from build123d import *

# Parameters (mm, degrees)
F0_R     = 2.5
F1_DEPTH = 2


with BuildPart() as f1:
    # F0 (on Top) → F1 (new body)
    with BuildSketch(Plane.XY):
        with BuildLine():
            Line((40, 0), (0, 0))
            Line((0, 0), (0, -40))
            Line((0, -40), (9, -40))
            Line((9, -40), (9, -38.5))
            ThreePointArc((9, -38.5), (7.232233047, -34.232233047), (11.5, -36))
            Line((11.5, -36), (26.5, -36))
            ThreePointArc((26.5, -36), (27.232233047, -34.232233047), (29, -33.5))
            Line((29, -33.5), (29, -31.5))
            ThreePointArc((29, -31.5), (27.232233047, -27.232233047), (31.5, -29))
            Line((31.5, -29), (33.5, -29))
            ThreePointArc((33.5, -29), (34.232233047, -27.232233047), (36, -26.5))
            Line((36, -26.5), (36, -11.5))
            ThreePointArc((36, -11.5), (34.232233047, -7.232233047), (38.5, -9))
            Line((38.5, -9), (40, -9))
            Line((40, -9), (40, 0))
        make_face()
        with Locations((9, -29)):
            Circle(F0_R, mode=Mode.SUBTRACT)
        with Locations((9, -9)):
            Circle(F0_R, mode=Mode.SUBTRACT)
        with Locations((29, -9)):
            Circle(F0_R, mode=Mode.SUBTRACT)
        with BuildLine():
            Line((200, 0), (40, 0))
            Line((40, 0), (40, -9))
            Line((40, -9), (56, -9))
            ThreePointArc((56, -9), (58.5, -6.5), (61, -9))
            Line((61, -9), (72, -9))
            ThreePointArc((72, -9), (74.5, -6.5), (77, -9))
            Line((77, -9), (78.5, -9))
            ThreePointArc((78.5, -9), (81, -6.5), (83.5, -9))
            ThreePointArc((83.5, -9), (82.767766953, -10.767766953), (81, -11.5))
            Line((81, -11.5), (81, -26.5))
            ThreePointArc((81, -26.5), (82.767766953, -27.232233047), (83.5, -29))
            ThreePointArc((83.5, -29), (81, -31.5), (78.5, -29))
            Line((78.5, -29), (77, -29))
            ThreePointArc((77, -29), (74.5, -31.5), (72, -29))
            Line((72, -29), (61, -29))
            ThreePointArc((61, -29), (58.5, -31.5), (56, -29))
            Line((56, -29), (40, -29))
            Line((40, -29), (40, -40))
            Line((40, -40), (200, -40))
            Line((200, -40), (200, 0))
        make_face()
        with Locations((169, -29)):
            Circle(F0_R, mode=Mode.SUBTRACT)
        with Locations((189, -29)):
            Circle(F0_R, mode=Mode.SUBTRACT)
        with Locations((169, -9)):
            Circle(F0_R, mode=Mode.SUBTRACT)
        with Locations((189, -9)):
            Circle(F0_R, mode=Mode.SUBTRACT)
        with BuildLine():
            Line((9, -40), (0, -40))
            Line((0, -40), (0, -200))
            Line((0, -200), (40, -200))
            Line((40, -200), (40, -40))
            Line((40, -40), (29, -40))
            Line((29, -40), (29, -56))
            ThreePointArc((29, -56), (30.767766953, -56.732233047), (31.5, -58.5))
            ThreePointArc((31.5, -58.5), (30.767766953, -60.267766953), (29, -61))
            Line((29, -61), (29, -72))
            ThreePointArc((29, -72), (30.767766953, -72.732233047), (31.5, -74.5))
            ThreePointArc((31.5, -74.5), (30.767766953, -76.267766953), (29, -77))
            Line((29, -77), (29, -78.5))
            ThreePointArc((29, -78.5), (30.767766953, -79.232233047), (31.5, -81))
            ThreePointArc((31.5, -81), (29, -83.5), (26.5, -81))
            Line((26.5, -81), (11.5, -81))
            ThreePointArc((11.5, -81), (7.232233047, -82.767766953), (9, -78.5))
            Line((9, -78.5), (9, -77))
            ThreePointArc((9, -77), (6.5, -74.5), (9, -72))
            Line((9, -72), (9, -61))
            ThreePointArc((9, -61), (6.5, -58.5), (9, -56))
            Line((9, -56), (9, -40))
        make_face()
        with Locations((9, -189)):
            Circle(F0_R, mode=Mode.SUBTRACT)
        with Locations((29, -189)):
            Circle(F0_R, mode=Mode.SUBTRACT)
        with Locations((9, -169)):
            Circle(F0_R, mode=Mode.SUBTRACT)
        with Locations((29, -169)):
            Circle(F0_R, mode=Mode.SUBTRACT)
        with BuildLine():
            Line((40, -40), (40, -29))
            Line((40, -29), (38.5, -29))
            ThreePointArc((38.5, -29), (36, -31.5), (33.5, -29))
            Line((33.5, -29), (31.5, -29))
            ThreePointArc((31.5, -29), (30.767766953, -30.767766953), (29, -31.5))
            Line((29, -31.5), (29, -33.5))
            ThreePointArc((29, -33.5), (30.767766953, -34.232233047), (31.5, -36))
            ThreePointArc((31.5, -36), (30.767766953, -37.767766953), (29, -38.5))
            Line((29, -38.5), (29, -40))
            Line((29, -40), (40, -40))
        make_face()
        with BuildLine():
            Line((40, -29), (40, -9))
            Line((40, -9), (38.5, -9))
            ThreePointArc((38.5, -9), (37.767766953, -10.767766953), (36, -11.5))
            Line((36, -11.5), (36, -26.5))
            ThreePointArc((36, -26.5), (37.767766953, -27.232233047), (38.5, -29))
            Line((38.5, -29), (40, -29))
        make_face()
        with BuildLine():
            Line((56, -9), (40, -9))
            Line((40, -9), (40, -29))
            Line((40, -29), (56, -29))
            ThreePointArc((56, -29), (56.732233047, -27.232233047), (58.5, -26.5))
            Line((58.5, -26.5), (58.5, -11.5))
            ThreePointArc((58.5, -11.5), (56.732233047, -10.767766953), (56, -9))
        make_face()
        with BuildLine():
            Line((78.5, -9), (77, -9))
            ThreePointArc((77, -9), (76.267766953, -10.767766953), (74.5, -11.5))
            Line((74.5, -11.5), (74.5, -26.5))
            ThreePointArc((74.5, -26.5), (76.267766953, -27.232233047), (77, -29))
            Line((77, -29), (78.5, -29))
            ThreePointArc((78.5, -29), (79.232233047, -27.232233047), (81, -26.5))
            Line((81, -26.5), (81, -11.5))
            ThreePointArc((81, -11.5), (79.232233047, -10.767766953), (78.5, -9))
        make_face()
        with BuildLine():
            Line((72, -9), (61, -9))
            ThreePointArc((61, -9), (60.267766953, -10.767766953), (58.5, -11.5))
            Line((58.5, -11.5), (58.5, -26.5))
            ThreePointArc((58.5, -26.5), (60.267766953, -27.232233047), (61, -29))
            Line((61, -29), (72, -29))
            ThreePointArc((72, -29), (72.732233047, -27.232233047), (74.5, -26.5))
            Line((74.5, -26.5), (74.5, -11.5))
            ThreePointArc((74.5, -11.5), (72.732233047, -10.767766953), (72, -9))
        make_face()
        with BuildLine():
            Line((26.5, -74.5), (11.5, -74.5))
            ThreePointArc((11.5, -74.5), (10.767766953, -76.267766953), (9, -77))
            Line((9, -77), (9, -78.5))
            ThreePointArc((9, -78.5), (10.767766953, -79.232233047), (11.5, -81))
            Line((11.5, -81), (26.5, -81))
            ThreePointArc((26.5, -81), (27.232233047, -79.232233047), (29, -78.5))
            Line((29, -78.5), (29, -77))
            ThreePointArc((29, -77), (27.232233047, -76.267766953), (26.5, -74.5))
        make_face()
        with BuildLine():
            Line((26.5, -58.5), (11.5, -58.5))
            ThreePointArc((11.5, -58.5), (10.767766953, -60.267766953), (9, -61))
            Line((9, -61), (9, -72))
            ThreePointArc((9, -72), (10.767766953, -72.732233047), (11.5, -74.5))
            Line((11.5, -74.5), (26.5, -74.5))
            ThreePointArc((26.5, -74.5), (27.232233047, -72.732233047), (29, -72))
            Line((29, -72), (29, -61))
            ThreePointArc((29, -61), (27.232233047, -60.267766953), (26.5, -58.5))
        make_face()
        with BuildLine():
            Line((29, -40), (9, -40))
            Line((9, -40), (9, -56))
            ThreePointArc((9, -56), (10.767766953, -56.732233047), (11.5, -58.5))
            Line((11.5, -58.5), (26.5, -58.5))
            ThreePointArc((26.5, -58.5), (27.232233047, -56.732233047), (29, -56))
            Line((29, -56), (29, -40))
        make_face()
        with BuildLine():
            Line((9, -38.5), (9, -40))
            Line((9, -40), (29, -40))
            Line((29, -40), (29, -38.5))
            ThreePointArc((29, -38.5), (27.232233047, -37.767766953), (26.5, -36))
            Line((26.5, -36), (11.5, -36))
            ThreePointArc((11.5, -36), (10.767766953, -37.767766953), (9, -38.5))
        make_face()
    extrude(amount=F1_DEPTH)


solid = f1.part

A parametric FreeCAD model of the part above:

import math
import FreeCAD as App
import Part
import Sketcher
from FreeCAD import Vector


def add_polygon(sketch, points):
    """Adds a closed chain of lines whose ends are joined by coincident constraints."""
    first, n = sketch.GeometryCount, len(points)
    for a, b in zip(points, points[1:] + points[:1]):
        sketch.addGeometry(Part.LineSegment(App.Vector(*a, 0), App.Vector(*b, 0)), False)
    for i in range(n):
        sketch.addConstraint(Sketcher.Constraint("Coincident", first + i, 2, first + (i + 1) % n, 1))

doc = App.newDocument("Part")
body = doc.addObject("PartDesign::Body", "Body")

sketch1 = body.newObject("Sketcher::SketchObject", "Sketch")
sketch1.AttachmentSupport = (doc.getObject("XY_Plane"), [""])
sketch1.MapMode = "FlatFace"
add_polygon(sketch1, [(200, -40), (200, 0), (0, 0), (0, -200), (40, -200), (40, -40)])
sketch1.addGeometry(Part.Circle(Vector(9, -189, 0), Vector(0, 0, 1), 2.5), False)
sketch1.addGeometry(Part.Circle(Vector(29, -189, 0), Vector(0, 0, 1), 2.5), False)
sketch1.addGeometry(Part.Circle(Vector(9, -169, 0), Vector(0, 0, 1), 2.5), False)
sketch1.addGeometry(Part.Circle(Vector(29, -169, 0), Vector(0, 0, 1), 2.5), False)
sketch1.addGeometry(Part.ArcOfCircle(Part.Circle(Vector(58.5, -9, 0), Vector(0, 0, 1), 2.5), math.radians(0), math.radians(180)), False)
sketch1.addGeometry(Part.ArcOfCircle(Part.Circle(Vector(58.5, -9, 0), Vector(0, 0, 1), 2.5), math.radians(-90), math.radians(0)), False)
sketch1.addGeometry(Part.ArcOfCircle(Part.Circle(Vector(58.5, -9, 0), Vector(0, 0, 1), 2.5), math.radians(180), math.radians(270)), False)
sketch1.addGeometry(Part.ArcOfCircle(Part.Circle(Vector(74.5, -9, 0), Vector(0, 0, 1), 2.5), math.radians(0), math.radians(180)), False)
sketch1.addGeometry(Part.ArcOfCircle(Part.Circle(Vector(74.5, -9, 0), Vector(0, 0, 1), 2.5), math.radians(-90), math.radians(0)), False)
sketch1.addGeometry(Part.ArcOfCircle(Part.Circle(Vector(74.5, -9, 0), Vector(0, 0, 1), 2.5), math.radians(180), math.radians(270)), False)
sketch1.addGeometry(Part.ArcOfCircle(Part.Circle(Vector(74.5, -29, 0), Vector(0, 0, 1), 2.5), math.radians(0), math.radians(90)), False)
sketch1.addGeometry(Part.ArcOfCircle(Part.Circle(Vector(74.5, -29, 0), Vector(0, 0, 1), 2.5), math.radians(180), math.radians(360)), False)
sketch1.addGeometry(Part.ArcOfCircle(Part.Circle(Vector(74.5, -29, 0), Vector(0, 0, 1), 2.5), math.radians(90), math.radians(180)), False)
sketch1.addGeometry(Part.ArcOfCircle(Part.Circle(Vector(58.5, -29, 0), Vector(0, 0, 1), 2.5), math.radians(180), math.radians(360)), False)
sketch1.addGeometry(Part.ArcOfCircle(Part.Circle(Vector(58.5, -29, 0), Vector(0, 0, 1), 2.5), math.radians(90), math.radians(180)), False)
sketch1.addGeometry(Part.ArcOfCircle(Part.Circle(Vector(58.5, -29, 0), Vector(0, 0, 1), 2.5), math.radians(0), math.radians(90)), False)
sketch1.addGeometry(Part.ArcOfCircle(Part.Circle(Vector(81, -9, 0), Vector(0, 0, 1), 2.5), math.radians(0), math.radians(180)), False)
sketch1.addGeometry(Part.ArcOfCircle(Part.Circle(Vector(81, -9, 0), Vector(0, 0, 1), 2.5), math.radians(-90), math.radians(0)), False)
sketch1.addGeometry(Part.ArcOfCircle(Part.Circle(Vector(81, -9, 0), Vector(0, 0, 1), 2.5), math.radians(180), math.radians(270)), False)
sketch1.addGeometry(Part.ArcOfCircle(Part.Circle(Vector(81, -29, 0), Vector(0, 0, 1), 2.5), math.radians(0), math.radians(90)), False)
sketch1.addGeometry(Part.ArcOfCircle(Part.Circle(Vector(81, -29, 0), Vector(0, 0, 1), 2.5), math.radians(180), math.radians(360)), False)
sketch1.addGeometry(Part.ArcOfCircle(Part.Circle(Vector(81, -29, 0), Vector(0, 0, 1), 2.5), math.radians(90), math.radians(180)), False)
sketch1.addGeometry(Part.ArcOfCircle(Part.Circle(Vector(36, -29, 0), Vector(0, 0, 1), 2.5), math.radians(180), math.radians(360)), False)
sketch1.addGeometry(Part.ArcOfCircle(Part.Circle(Vector(36, -29, 0), Vector(0, 0, 1), 2.5), math.radians(90), math.radians(180)), False)
sketch1.addGeometry(Part.ArcOfCircle(Part.Circle(Vector(36, -29, 0), Vector(0, 0, 1), 2.5), math.radians(0), math.radians(90)), False)
sketch1.addGeometry(Part.ArcOfCircle(Part.Circle(Vector(36, -9, 0), Vector(0, 0, 1), 2.5), math.radians(0), math.radians(270)), False)
sketch1.addGeometry(Part.ArcOfCircle(Part.Circle(Vector(36, -9, 0), Vector(0, 0, 1), 2.5), math.radians(-90), math.radians(0)), False)
sketch1.addGeometry(Part.ArcOfCircle(Part.Circle(Vector(29, -29, 0), Vector(0, 0, 1), 2.5), math.radians(0), math.radians(270)), False)
sketch1.addGeometry(Part.ArcOfCircle(Part.Circle(Vector(29, -29, 0), Vector(0, 0, 1), 2.5), math.radians(-90), math.radians(0)), False)
sketch1.addGeometry(Part.ArcOfCircle(Part.Circle(Vector(29, -36, 0), Vector(0, 0, 1), 2.5), math.radians(90), math.radians(180)), False)
sketch1.addGeometry(Part.ArcOfCircle(Part.Circle(Vector(29, -36, 0), Vector(0, 0, 1), 2.5), math.radians(0), math.radians(90)), False)
sketch1.addGeometry(Part.ArcOfCircle(Part.Circle(Vector(29, -36, 0), Vector(0, 0, 1), 2.5), math.radians(-90), math.radians(0)), False)
sketch1.addGeometry(Part.ArcOfCircle(Part.Circle(Vector(29, -36, 0), Vector(0, 0, 1), 2.5), math.radians(180), math.radians(270)), False)
sketch1.addGeometry(Part.ArcOfCircle(Part.Circle(Vector(9, -36, 0), Vector(0, 0, 1), 2.5), math.radians(0), math.radians(270)), False)
sketch1.addGeometry(Part.ArcOfCircle(Part.Circle(Vector(9, -36, 0), Vector(0, 0, 1), 2.5), math.radians(-90), math.radians(0)), False)
sketch1.addGeometry(Part.ArcOfCircle(Part.Circle(Vector(29, -58.5, 0), Vector(0, 0, 1), 2.5), math.radians(0), math.radians(90)), False)
sketch1.addGeometry(Part.ArcOfCircle(Part.Circle(Vector(29, -58.5, 0), Vector(0, 0, 1), 2.5), math.radians(-90), math.radians(0)), False)
sketch1.addGeometry(Part.ArcOfCircle(Part.Circle(Vector(29, -58.5, 0), Vector(0, 0, 1), 2.5), math.radians(180), math.radians(270)), False)
sketch1.addGeometry(Part.ArcOfCircle(Part.Circle(Vector(29, -58.5, 0), Vector(0, 0, 1), 2.5), math.radians(90), math.radians(180)), False)
sketch1.addGeometry(Part.ArcOfCircle(Part.Circle(Vector(9, -58.5, 0), Vector(0, 0, 1), 2.5), math.radians(-90), math.radians(0)), False)
sketch1.addGeometry(Part.ArcOfCircle(Part.Circle(Vector(9, -58.5, 0), Vector(0, 0, 1), 2.5), math.radians(90), math.radians(270)), False)
sketch1.addGeometry(Part.ArcOfCircle(Part.Circle(Vector(9, -58.5, 0), Vector(0, 0, 1), 2.5), math.radians(0), math.radians(90)), False)
sketch1.addGeometry(Part.ArcOfCircle(Part.Circle(Vector(29, -74.5, 0), Vector(0, 0, 1), 2.5), math.radians(0), math.radians(90)), False)
sketch1.addGeometry(Part.ArcOfCircle(Part.Circle(Vector(29, -74.5, 0), Vector(0, 0, 1), 2.5), math.radians(-90), math.radians(0)), False)
sketch1.addGeometry(Part.ArcOfCircle(Part.Circle(Vector(29, -74.5, 0), Vector(0, 0, 1), 2.5), math.radians(180), math.radians(270)), False)
sketch1.addGeometry(Part.ArcOfCircle(Part.Circle(Vector(29, -74.5, 0), Vector(0, 0, 1), 2.5), math.radians(90), math.radians(180)), False)
sketch1.addGeometry(Part.ArcOfCircle(Part.Circle(Vector(9, -74.5, 0), Vector(0, 0, 1), 2.5), math.radians(-90), math.radians(0)), False)
sketch1.addGeometry(Part.ArcOfCircle(Part.Circle(Vector(9, -74.5, 0), Vector(0, 0, 1), 2.5), math.radians(90), math.radians(270)), False)
sketch1.addGeometry(Part.ArcOfCircle(Part.Circle(Vector(9, -74.5, 0), Vector(0, 0, 1), 2.5), math.radians(0), math.radians(90)), False)
sketch1.addGeometry(Part.ArcOfCircle(Part.Circle(Vector(29, -81, 0), Vector(0, 0, 1), 2.5), math.radians(0), math.radians(90)), False)
sketch1.addGeometry(Part.ArcOfCircle(Part.Circle(Vector(29, -81, 0), Vector(0, 0, 1), 2.5), math.radians(180), math.radians(360)), False)
sketch1.addGeometry(Part.ArcOfCircle(Part.Circle(Vector(29, -81, 0), Vector(0, 0, 1), 2.5), math.radians(90), math.radians(180)), False)
sketch1.addGeometry(Part.ArcOfCircle(Part.Circle(Vector(9, -81, 0), Vector(0, 0, 1), 2.5), math.radians(90), math.radians(360)), False)
sketch1.addGeometry(Part.ArcOfCircle(Part.Circle(Vector(9, -81, 0), Vector(0, 0, 1), 2.5), math.radians(0), math.radians(90)), False)
sketch1.addGeometry(Part.Circle(Vector(9, -29, 0), Vector(0, 0, 1), 2.5), False)
sketch1.addGeometry(Part.Circle(Vector(9, -9, 0), Vector(0, 0, 1), 2.5), False)
sketch1.addGeometry(Part.Circle(Vector(29, -9, 0), Vector(0, 0, 1), 2.5), False)
sketch1.addGeometry(Part.Circle(Vector(169, -29, 0), Vector(0, 0, 1), 2.5), False)
sketch1.addGeometry(Part.Circle(Vector(189, -29, 0), Vector(0, 0, 1), 2.5), False)
sketch1.addGeometry(Part.Circle(Vector(169, -9, 0), Vector(0, 0, 1), 2.5), False)
sketch1.addGeometry(Part.Circle(Vector(189, -9, 0), Vector(0, 0, 1), 2.5), False)
sketch1.addConstraint([
    Sketcher.Constraint("Tangent", 10, 1, 11, 2),
    Sketcher.Constraint("Tangent", 11, 1, 12, 2),
    Sketcher.Constraint("Tangent", 12, 1, 10, 2),
    Sketcher.Constraint("Tangent", 13, 1, 14, 2),
    Sketcher.Constraint("Tangent", 14, 1, 15, 2),
    Sketcher.Constraint("Tangent", 15, 1, 13, 2),
    Sketcher.Constraint("Tangent", 16, 1, 17, 2),
    Sketcher.Constraint("Tangent", 17, 1, 18, 2),
    Sketcher.Constraint("Tangent", 18, 1, 16, 2),
    Sketcher.Constraint("Tangent", 19, 1, 20, 2),
    Sketcher.Constraint("Tangent", 20, 1, 21, 2),
    Sketcher.Constraint("Tangent", 21, 1, 19, 2),
    Sketcher.Constraint("Tangent", 22, 1, 23, 2),
    Sketcher.Constraint("Tangent", 23, 1, 24, 2),
    Sketcher.Constraint("Tangent", 24, 1, 22, 2),
    Sketcher.Constraint("Tangent", 25, 1, 26, 2),
    Sketcher.Constraint("Tangent", 26, 1, 27, 2),
    Sketcher.Constraint("Tangent", 27, 1, 25, 2),
    Sketcher.Constraint("Tangent", 28, 1, 29, 2),
    Sketcher.Constraint("Tangent", 29, 1, 30, 2),
    Sketcher.Constraint("Tangent", 30, 1, 28, 2),
    Sketcher.Constraint("Tangent", 31, 1, 32, 2),
    Sketcher.Constraint("Coincident", 32, 1, 31, 2),
    Sketcher.Constraint("Tangent", 33, 1, 34, 2),
    Sketcher.Constraint("Coincident", 34, 1, 33, 2),
    Sketcher.Constraint("Tangent", 35, 1, 36, 2),
    Sketcher.Constraint("Tangent", 36, 1, 37, 2),
    Sketcher.Constraint("Tangent", 37, 1, 38, 2),
    Sketcher.Constraint("Tangent", 38, 1, 35, 2),
    Sketcher.Constraint("Tangent", 39, 1, 40, 2),
    Sketcher.Constraint("Coincident", 40, 1, 39, 2),
    Sketcher.Constraint("Tangent", 41, 1, 42, 2),
    Sketcher.Constraint("Tangent", 42, 1, 43, 2),
    Sketcher.Constraint("Tangent", 43, 1, 44, 2),
    Sketcher.Constraint("Tangent", 44, 1, 41, 2),
    Sketcher.Constraint("Tangent", 45, 1, 46, 2),
    Sketcher.Constraint("Tangent", 46, 1, 47, 2),
    Sketcher.Constraint("Tangent", 47, 1, 45, 2),
    Sketcher.Constraint("Tangent", 48, 1, 49, 2),
    Sketcher.Constraint("Tangent", 49, 1, 50, 2),
    Sketcher.Constraint("Tangent", 50, 1, 51, 2),
    Sketcher.Constraint("Tangent", 51, 1, 48, 2),
    Sketcher.Constraint("Tangent", 52, 1, 53, 2),
    Sketcher.Constraint("Tangent", 53, 1, 54, 2),
    Sketcher.Constraint("Tangent", 54, 1, 52, 2),
    Sketcher.Constraint("Tangent", 55, 1, 56, 2),
    Sketcher.Constraint("Tangent", 56, 1, 57, 2),
    Sketcher.Constraint("Tangent", 57, 1, 55, 2),
    Sketcher.Constraint("Tangent", 58, 1, 59, 2),
    Sketcher.Constraint("Coincident", 59, 1, 58, 2),
    Sketcher.Constraint("Vertical", 0),
    Sketcher.Constraint("Horizontal", 1),
    Sketcher.Constraint("Vertical", 2),
    Sketcher.Constraint("Horizontal", 3),
    Sketcher.Constraint("Vertical", 4),
    Sketcher.Constraint("Horizontal", 5),
    Sketcher.Constraint("Coincident", 1, 2, -1, 1),
    Sketcher.Constraint("Equal", 6, 7),
    Sketcher.Constraint("Equal", 7, 8),
    Sketcher.Constraint("Equal", 8, 9),
    Sketcher.Constraint("Equal", 9, 10),
    Sketcher.Constraint("Equal", 12, 13),
    Sketcher.Constraint("Equal", 15, 16),
    Sketcher.Constraint("Equal", 18, 19),
    Sketcher.Constraint("Equal", 21, 22),
    Sketcher.Constraint("Equal", 24, 25),
    Sketcher.Constraint("Equal", 27, 28),
    Sketcher.Constraint("Equal", 30, 31),
    Sketcher.Constraint("Equal", 32, 33),
    Sketcher.Constraint("Equal", 34, 35),
    Sketcher.Constraint("Equal", 35, 36),
    Sketcher.Constraint("Equal", 38, 39),
    Sketcher.Constraint("Equal", 40, 41),
    Sketcher.Constraint("Equal", 41, 42),
    Sketcher.Constraint("Equal", 44, 45),
    Sketcher.Constraint("Equal", 47, 48),
    Sketcher.Constraint("Equal", 48, 49),
    Sketcher.Constraint("Equal", 51, 52),
    Sketcher.Constraint("Equal", 54, 55),
    Sketcher.Constraint("Equal", 57, 58),
    Sketcher.Constraint("Equal", 59, 60),
    Sketcher.Constraint("Equal", 60, 61),
    Sketcher.Constraint("Equal", 61, 62),
    Sketcher.Constraint("Equal", 62, 63),
    Sketcher.Constraint("Equal", 63, 64),
    Sketcher.Constraint("Equal", 64, 65),
    Sketcher.Constraint("Equal", 65, 66),
    Sketcher.Constraint("Horizontal", 6, 3, 7, 3),
    Sketcher.Constraint("Horizontal", 8, 3, 9, 3),
    Sketcher.Constraint("Horizontal", 12, 3, 13, 3),
    Sketcher.Constraint("Horizontal", 18, 3, 19, 3),
    Sketcher.Constraint("Horizontal", 15, 3, 22, 3),
    Sketcher.Constraint("Horizontal", 21, 3, 25, 3),
    Sketcher.Constraint("Horizontal", 27, 3, 28, 3),
    Sketcher.Constraint("Horizontal", 24, 3, 31, 3),
    Sketcher.Constraint("Horizontal", 30, 3, 33, 3),
    Sketcher.Constraint("Horizontal", 38, 3, 39, 3),
    Sketcher.Constraint("Horizontal", 44, 3, 45, 3),
    Sketcher.Constraint("Horizontal", 51, 3, 52, 3),
    Sketcher.Constraint("Horizontal", 57, 3, 58, 3),
    Sketcher.Constraint("Horizontal", 34, 3, 60, 3),
    Sketcher.Constraint("Horizontal", 32, 3, 61, 3),
    Sketcher.Constraint("Horizontal", 61, 3, 62, 3),
    Sketcher.Constraint("Horizontal", 60, 3, 63, 3),
    Sketcher.Constraint("Horizontal", 63, 3, 64, 3),
    Sketcher.Constraint("Horizontal", 62, 3, 65, 3),
    Sketcher.Constraint("Horizontal", 65, 3, 66, 3),
    Sketcher.Constraint("Horizontal", 66, 3, 10, 1),
    Sketcher.Constraint("Horizontal", 10, 1, 12, 1),
    Sketcher.Constraint("Horizontal", 12, 1, 13, 1),
    Sketcher.Constraint("Horizontal", 13, 1, 15, 1),
    Sketcher.Constraint("Horizontal", 64, 3, 16, 1),
    Sketcher.Constraint("Horizontal", 16, 1, 17, 1),
    Sketcher.Constraint("Horizontal", 17, 1, 19, 1),
    Sketcher.Constraint("Horizontal", 19, 1, 21, 1),
    Sketcher.Constraint("Horizontal", 15, 1, 22, 1),
    Sketcher.Constraint("Horizontal", 22, 1, 24, 1),
    Sketcher.Constraint("Horizontal", 21, 1, 25, 1),
    Sketcher.Constraint("Horizontal", 25, 1, 26, 1),
    Sketcher.Constraint("Horizontal", 26, 1, 28, 1),
    Sketcher.Constraint("Horizontal", 28, 1, 30, 1),
    Sketcher.Constraint("Horizontal", 24, 1, 31, 1),
    Sketcher.Constraint("Horizontal", 30, 1, 33, 1),
    Sketcher.Constraint("Horizontal", 40, 3, 36, 1),
    Sketcher.Constraint("Horizontal", 36, 1, 38, 1),
    Sketcher.Constraint("Horizontal", 38, 1, 39, 1),
    Sketcher.Constraint("Horizontal", 47, 3, 41, 1),
    Sketcher.Constraint("Horizontal", 41, 1, 43, 1),
    Sketcher.Constraint("Horizontal", 43, 1, 47, 1),
    Sketcher.Constraint("Horizontal", 54, 3, 48, 1),
    Sketcher.Constraint("Horizontal", 48, 1, 50, 1),
    Sketcher.Constraint("Horizontal", 50, 1, 54, 1),
    Sketcher.Constraint("Horizontal", 59, 3, 55, 1),
    Sketcher.Constraint("Horizontal", 55, 1, 56, 1),
    Sketcher.Constraint("Horizontal", 56, 1, 59, 1),
    Sketcher.Constraint("Vertical", 6, 3, 8, 3),
    Sketcher.Constraint("Vertical", 7, 3, 9, 3),
    Sketcher.Constraint("Vertical", 15, 3, 16, 3),
    Sketcher.Constraint("Vertical", 12, 3, 19, 3),
    Sketcher.Constraint("Vertical", 24, 3, 25, 3),
    Sketcher.Constraint("Vertical", 30, 3, 31, 3),
    Sketcher.Constraint("Vertical", 9, 3, 33, 3),
    Sketcher.Constraint("Vertical", 34, 3, 35, 3),
    Sketcher.Constraint("Vertical", 8, 3, 39, 3),
    Sketcher.Constraint("Vertical", 38, 3, 41, 3),
    Sketcher.Constraint("Vertical", 40, 3, 45, 3),
    Sketcher.Constraint("Vertical", 44, 3, 48, 3),
    Sketcher.Constraint("Vertical", 47, 3, 52, 3),
    Sketcher.Constraint("Vertical", 51, 3, 55, 3),
    Sketcher.Constraint("Vertical", 54, 3, 58, 3),
    Sketcher.Constraint("Vertical", 59, 3, 60, 3),
    Sketcher.Constraint("Vertical", 60, 3, 61, 3),
    Sketcher.Constraint("Vertical", 57, 3, 62, 3),
    Sketcher.Constraint("Vertical", 63, 3, 65, 3),
    Sketcher.Constraint("Vertical", 64, 3, 66, 3),
    Sketcher.Constraint("Vertical", 21, 3, 11, 1),
    Sketcher.Constraint("Vertical", 18, 3, 14, 1),
    Sketcher.Constraint("Vertical", 14, 1, 18, 1),
    Sketcher.Constraint("Vertical", 11, 1, 20, 1),
    Sketcher.Constraint("Vertical", 27, 3, 23, 1),
    Sketcher.Constraint("Vertical", 23, 1, 27, 1),
    Sketcher.Constraint("Vertical", 32, 3, 29, 1),
    Sketcher.Constraint("Vertical", 29, 1, 32, 1),
    Sketcher.Constraint("Vertical", 62, 3, 34, 1),
    Sketcher.Constraint("Vertical", 34, 1, 35, 1),
    Sketcher.Constraint("Vertical", 35, 1, 37, 1),
    Sketcher.Constraint("Vertical", 61, 3, 40, 1),
    Sketcher.Constraint("Vertical", 37, 1, 42, 1),
    Sketcher.Constraint("Vertical", 42, 1, 44, 1),
    Sketcher.Constraint("Vertical", 40, 1, 45, 1),
    Sketcher.Constraint("Vertical", 45, 1, 46, 1),
    Sketcher.Constraint("Vertical", 44, 1, 49, 1),
    Sketcher.Constraint("Vertical", 49, 1, 51, 1),
    Sketcher.Constraint("Vertical", 46, 1, 52, 1),
    Sketcher.Constraint("Vertical", 52, 1, 53, 1),
    Sketcher.Constraint("Vertical", 51, 1, 57, 1),
    Sketcher.Constraint("Vertical", 53, 1, 58, 1),
    Sketcher.Constraint("Equal", 3, 0),
    Sketcher.Constraint("Equal", 1, 2),
    Sketcher.Constraint("Diameter", 6, 5.0),
    Sketcher.Constraint("DistanceX", 1, 2, 1, 1, 200.0),
    Sketcher.Constraint("DistanceX", 3, 1, 3, 2, 40.0),
    Sketcher.Constraint("DistanceX", -1, 1, 6, 3, 9.0),
    Sketcher.Constraint("DistanceY", 6, 3, -1, 1, 189.0),
    Sketcher.Constraint("DistanceX", -1, 1, 7, 3, 29.0),
    Sketcher.Constraint("DistanceY", 8, 3, -1, 1, 169.0),
    Sketcher.Constraint("DistanceY", 10, 3, -1, 1, 9.0),
    Sketcher.Constraint("DistanceY", 16, 3, -1, 1, 29.0),
    Sketcher.Constraint("DistanceX", -1, 1, 22, 3, 81.0),
    Sketcher.Constraint("DistanceX", -1, 1, 28, 3, 36.0),
    Sketcher.Constraint("DistanceY", 35, 3, -1, 1, 36.0),
    Sketcher.Constraint("DistanceY", 55, 3, -1, 1, 81.0),
    Sketcher.Constraint("DistanceX", -1, 1, 63, 3, 169.0),
    Sketcher.Constraint("DistanceX", -1, 1, 64, 3, 189.0),
    Sketcher.Constraint("DistanceX", -1, 1, 10, 1, 61.0),
    Sketcher.Constraint("DistanceX", -1, 1, 13, 1, 77.0),
    Sketcher.Constraint("DistanceY", 42, 1, -1, 1, 61.0),
    Sketcher.Constraint("DistanceY", 49, 1, -1, 1, 77.0),
])
pad1 = body.newObject("PartDesign::Pad", "Pad")
pad1.Profile = sketch1
pad1.Length = 2

doc.recompute()
